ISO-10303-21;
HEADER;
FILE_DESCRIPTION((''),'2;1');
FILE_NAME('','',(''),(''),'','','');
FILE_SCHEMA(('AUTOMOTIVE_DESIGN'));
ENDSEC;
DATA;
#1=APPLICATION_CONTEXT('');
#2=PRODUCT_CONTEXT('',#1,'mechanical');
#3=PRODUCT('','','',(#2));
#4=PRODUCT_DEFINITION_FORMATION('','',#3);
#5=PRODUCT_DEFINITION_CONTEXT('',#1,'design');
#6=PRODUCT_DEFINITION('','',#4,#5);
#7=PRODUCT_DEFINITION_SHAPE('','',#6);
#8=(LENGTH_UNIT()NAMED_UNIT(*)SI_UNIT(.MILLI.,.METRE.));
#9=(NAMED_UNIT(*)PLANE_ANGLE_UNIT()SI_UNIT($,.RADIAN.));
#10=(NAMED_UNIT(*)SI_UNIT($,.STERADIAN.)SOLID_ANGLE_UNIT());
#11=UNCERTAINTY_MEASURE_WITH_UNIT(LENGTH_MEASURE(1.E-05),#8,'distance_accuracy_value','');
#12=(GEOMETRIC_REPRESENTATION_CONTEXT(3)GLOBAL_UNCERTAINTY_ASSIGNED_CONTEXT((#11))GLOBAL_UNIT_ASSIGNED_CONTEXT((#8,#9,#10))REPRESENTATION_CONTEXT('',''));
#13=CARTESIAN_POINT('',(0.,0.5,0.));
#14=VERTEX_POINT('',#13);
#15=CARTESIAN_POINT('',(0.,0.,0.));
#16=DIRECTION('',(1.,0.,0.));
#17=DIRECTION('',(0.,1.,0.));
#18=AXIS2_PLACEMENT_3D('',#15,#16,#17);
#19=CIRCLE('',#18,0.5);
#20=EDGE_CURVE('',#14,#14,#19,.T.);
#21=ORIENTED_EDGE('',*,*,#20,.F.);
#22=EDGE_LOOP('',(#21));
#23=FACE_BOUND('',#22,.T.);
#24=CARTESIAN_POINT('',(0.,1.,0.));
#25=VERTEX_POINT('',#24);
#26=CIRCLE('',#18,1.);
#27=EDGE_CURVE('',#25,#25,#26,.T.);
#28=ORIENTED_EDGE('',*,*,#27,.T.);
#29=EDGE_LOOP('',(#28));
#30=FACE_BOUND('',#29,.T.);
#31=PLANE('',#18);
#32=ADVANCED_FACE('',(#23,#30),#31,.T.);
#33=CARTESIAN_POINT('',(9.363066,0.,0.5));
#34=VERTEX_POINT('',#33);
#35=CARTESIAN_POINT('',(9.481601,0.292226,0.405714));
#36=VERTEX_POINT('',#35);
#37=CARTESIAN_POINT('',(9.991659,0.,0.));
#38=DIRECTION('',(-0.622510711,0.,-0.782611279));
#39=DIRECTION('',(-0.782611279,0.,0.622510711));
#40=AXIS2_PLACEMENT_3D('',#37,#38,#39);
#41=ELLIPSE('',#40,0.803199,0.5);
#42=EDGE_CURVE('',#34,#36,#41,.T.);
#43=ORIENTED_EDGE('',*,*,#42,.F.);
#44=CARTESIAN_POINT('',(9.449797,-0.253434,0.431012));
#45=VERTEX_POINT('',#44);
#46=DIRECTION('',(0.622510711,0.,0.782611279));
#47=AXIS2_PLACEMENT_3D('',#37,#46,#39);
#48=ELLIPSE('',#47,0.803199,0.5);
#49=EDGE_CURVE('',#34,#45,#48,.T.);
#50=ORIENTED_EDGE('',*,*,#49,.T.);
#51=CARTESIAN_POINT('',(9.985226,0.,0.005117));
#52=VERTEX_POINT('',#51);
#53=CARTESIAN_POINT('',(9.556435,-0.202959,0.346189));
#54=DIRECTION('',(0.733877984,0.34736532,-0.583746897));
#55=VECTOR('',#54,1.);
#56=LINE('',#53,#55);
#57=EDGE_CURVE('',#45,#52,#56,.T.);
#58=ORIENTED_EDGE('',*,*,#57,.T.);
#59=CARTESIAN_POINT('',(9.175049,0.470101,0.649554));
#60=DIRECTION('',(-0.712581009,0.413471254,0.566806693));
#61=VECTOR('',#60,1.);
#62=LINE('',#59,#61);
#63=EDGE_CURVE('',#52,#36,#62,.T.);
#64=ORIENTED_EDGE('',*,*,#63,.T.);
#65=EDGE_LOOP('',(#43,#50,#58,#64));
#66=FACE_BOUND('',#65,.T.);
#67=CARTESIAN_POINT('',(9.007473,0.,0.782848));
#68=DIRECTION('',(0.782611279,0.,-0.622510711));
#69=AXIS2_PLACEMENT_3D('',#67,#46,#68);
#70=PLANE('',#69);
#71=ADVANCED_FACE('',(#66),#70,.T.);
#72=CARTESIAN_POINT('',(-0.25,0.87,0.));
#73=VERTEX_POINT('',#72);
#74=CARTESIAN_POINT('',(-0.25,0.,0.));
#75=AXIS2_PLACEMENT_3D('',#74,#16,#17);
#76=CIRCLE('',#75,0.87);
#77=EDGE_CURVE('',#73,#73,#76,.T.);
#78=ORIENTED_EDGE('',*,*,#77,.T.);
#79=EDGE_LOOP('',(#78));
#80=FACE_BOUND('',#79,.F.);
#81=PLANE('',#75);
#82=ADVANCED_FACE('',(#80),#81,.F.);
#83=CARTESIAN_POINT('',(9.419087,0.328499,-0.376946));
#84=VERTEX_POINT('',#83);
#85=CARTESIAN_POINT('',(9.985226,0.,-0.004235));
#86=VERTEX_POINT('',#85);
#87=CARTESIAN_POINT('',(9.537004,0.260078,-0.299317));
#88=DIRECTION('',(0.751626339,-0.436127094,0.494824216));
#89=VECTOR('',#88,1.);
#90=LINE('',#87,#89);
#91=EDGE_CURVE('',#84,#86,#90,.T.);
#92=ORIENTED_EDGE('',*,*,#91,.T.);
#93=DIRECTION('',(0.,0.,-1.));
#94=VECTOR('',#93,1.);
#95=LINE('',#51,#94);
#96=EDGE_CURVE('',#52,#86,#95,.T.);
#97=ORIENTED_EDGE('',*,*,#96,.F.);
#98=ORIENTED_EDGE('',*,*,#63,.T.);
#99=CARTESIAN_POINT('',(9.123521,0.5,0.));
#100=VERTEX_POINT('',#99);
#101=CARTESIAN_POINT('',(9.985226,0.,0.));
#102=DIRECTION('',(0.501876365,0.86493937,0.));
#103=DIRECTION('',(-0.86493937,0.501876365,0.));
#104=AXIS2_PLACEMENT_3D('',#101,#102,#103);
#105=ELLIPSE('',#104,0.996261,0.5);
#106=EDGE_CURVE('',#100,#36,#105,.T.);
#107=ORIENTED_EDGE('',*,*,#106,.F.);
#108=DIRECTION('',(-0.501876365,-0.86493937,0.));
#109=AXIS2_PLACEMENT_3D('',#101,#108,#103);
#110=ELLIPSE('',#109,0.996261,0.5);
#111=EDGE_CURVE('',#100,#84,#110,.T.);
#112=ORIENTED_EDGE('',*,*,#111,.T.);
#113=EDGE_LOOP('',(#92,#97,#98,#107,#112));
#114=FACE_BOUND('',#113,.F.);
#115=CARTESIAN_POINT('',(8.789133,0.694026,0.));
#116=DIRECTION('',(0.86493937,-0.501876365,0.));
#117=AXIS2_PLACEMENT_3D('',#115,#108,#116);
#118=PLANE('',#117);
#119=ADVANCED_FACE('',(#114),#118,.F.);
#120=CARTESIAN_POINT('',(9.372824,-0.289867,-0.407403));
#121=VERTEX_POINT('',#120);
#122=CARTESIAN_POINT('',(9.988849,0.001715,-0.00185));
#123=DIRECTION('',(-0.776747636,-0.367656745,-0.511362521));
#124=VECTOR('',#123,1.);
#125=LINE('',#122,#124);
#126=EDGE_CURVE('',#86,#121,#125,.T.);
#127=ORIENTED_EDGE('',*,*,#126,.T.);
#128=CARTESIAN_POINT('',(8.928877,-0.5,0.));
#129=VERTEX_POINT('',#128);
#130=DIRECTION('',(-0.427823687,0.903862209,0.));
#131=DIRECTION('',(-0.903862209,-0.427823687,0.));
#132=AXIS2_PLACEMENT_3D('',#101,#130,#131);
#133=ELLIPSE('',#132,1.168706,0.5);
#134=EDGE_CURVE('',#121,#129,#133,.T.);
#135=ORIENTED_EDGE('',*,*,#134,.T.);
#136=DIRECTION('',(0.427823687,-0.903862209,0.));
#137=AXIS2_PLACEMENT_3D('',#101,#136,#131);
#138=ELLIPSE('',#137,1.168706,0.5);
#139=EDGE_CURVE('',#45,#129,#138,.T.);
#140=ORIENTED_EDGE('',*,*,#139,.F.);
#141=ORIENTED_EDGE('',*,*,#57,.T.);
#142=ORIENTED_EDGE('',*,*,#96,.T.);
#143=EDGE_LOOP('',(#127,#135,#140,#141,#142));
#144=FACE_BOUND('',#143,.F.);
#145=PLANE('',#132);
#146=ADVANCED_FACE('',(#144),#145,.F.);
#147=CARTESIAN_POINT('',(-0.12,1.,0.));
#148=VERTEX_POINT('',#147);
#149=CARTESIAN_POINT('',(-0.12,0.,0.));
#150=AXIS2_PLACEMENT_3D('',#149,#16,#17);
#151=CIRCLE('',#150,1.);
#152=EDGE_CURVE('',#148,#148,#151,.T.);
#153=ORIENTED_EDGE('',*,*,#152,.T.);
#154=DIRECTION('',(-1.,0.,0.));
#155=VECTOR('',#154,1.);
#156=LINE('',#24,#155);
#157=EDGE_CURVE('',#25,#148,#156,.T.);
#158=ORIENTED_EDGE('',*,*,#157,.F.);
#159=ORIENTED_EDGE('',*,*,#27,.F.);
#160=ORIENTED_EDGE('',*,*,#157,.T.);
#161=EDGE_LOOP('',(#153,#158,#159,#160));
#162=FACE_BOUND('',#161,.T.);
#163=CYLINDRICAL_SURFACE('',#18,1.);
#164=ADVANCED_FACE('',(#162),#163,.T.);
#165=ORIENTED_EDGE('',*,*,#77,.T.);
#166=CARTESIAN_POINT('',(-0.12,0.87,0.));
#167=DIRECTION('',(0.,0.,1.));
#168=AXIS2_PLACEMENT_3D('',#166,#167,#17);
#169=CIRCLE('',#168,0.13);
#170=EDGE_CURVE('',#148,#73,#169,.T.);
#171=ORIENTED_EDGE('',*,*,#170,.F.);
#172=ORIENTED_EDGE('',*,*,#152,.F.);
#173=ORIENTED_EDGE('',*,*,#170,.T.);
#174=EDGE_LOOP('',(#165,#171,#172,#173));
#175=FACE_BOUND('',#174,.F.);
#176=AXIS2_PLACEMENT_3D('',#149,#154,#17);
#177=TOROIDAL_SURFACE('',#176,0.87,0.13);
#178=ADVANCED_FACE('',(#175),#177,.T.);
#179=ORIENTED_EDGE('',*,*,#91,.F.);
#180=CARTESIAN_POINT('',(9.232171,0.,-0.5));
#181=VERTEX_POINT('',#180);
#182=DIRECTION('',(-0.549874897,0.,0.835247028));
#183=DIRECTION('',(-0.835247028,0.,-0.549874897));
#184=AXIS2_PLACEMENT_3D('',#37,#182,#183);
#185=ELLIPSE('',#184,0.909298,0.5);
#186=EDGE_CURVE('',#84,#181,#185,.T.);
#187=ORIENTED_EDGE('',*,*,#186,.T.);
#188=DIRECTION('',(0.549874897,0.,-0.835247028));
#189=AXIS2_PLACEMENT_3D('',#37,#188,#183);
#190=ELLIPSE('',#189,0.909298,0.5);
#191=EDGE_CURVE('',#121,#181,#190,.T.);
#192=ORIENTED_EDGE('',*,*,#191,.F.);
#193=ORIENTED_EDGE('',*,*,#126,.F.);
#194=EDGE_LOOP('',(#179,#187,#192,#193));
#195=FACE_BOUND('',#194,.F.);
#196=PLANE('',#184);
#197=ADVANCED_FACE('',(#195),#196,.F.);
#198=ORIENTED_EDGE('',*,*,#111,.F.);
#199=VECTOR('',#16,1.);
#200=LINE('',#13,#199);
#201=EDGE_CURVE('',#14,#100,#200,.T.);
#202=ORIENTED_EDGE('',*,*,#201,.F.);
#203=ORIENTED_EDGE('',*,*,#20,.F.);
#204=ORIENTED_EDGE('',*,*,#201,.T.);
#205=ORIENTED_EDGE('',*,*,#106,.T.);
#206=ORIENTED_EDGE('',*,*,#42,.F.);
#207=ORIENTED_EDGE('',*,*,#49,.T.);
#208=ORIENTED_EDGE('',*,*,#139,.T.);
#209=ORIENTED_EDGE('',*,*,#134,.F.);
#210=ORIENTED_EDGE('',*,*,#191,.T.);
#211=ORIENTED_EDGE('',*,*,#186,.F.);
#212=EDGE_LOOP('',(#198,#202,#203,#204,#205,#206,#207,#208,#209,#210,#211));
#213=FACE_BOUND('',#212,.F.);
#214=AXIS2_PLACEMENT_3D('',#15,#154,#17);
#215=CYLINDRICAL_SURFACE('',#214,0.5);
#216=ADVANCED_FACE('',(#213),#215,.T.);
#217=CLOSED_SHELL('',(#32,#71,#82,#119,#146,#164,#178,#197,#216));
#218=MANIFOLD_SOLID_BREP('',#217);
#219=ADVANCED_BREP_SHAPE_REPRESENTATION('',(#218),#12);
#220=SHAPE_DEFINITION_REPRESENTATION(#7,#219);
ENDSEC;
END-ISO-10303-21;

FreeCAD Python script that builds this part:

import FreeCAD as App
import Part
import Sketcher


def edges_at(feature, points):
    """Names of the edges that pass closest to the given points."""
    edges = feature.Shape.Edges
    near = lambda p: min(range(len(edges)), key=lambda i: edges[i].distToShape(Part.Vertex(*p))[0])
    return sorted({f"Edge{near(p) + 1}" for p in points})


def add_polygon(sketch, points):
    """Adds a closed chain of lines whose ends are joined by coincident constraints."""
    first, n = sketch.GeometryCount, len(points)
    for a, b in zip(points, points[1:] + points[:1]):
        sketch.addGeometry(Part.LineSegment(App.Vector(*a, 0), App.Vector(*b, 0)), False)
    for i in range(n):
        sketch.addConstraint(Sketcher.Constraint("Coincident", first + i, 2, first + (i + 1) % n, 1))

doc = App.newDocument("Part")
params = doc.addObject("Spreadsheet::Sheet", "Params")
for row, (alias, value) in enumerate([
    ("sketch1_diameter", "1 mm"),
    ("pad1_length", "10 mm"),
    ("sketch2_diameter", "2 mm"),
    ("pad2_length", "0.25 mm"),
    ("fillet_radius", "0.13 mm"),
], start=1):
    params.set(f"A{row}", alias)
    params.set(f"B{row}", "=" + value)
    params.setAlias(f"B{row}", alias)

body = doc.addObject("PartDesign::Body", "Body")

# Sketch on YZ plane
sketch1 = body.newObject("Sketcher::SketchObject", "Sketch")
sketch1.AttachmentSupport = (doc.getObject("YZ_Plane"), [""])
sketch1.MapMode = "FlatFace"
sketch1.addGeometry(Part.Circle(App.Vector(0, 0, 0), App.Vector(0, 0, 1), 0.5), False)
sketch1.addConstraint(Sketcher.Constraint("Coincident", 0, 3, -1, 1))
sketch1.addConstraint(Sketcher.Constraint("Diameter", 0, 1.0))
sketch1.setExpression("Constraints[1]", "Params.sketch1_diameter")
pad1 = body.newObject("PartDesign::Pad", "Pad")
pad1.Profile = sketch1
pad1.setExpression("Length", "Params.pad1_length")

# Sketch on YZ plane
sketch2 = body.newObject("Sketcher::SketchObject", "Sketch001")
sketch2.AttachmentSupport = (doc.getObject("YZ_Plane"), [""])
sketch2.MapMode = "FlatFace"
sketch2.addGeometry(Part.Circle(App.Vector(0, 0, 0), App.Vector(0, 0, 1), 1), False)
sketch2.addConstraint(Sketcher.Constraint("Coincident", 0, 3, -1, 1))
sketch2.addConstraint(Sketcher.Constraint("Diameter", 0, 2.0))
sketch2.setExpression("Constraints[1]", "Params.sketch2_diameter")
pad2 = body.newObject("PartDesign::Pad", "Pad001")
pad2.Profile = sketch2
pad2.setExpression("Length", "Params.pad2_length")
pad2.Reversed = True
doc.recompute()

fillet = body.newObject("PartDesign::Fillet", "Fillet")
fillet.Base = (pad2, edges_at(pad2, [(-0.25, -1, 0)]))
fillet.setExpression("Radius", "Params.fillet_radius")

# Sketch on XZ plane
sketch3 = body.newObject("Sketcher::SketchObject", "Sketch002")
sketch3.AttachmentSupport = (doc.getObject("XZ_Plane"), [""])
sketch3.MapMode = "FlatFace"
add_polygon(sketch3, [(9.297336, 1.194049), (9.007473, 0.782848), (9.991659, 0), (8.805244, -0.781062), (10.719686, -0.754098), (10.733168, 1.342351)])  # lines 0-5
sketch3.addConstraint(Sketcher.Constraint("PointOnObject", 1, 2, -1))
sketch3.addConstraint(Sketcher.Constraint("DistanceY", 0, 2, 5, 2, 0.411201))
sketch3.addConstraint(Sketcher.Constraint("DistanceY", 5, 2, 4, 2, 0.148302))
sketch3.addConstraint(Sketcher.Constraint("Distance", 3, 1.914631))
sketch3.addConstraint(Sketcher.Constraint("Distance", 4, 2.096492))
sketch3.addConstraint(Sketcher.Constraint("Distance", 5, 1.44347))
sketch3.addConstraint(Sketcher.Constraint("DistanceY", -1, 1, 0, 2, 0.782848))
sketch3.addConstraint(Sketcher.Constraint("DistanceX", -1, 1, 1, 2, 9.991659))
sketch3.addConstraint(Sketcher.Constraint("DistanceY", 2, 2, -1, 1, 0.781062))
sketch3.addConstraint(Sketcher.Constraint("DistanceX", 2, 2, 0, 2, 0.202229))
sketch3.addConstraint(Sketcher.Constraint("DistanceX", 1, 2, 4, 2, 0.741509))
sketch3.addConstraint(Sketcher.Constraint("DistanceX", 3, 2, 4, 2, 0.013482))
pocket1 = body.newObject("PartDesign::Pocket", "Pocket")
pocket1.Profile = sketch3
pocket1.Type = "ThroughAll"
pocket1.Midplane = True

# Sketch on XY plane
sketch4 = body.newObject("Sketcher::SketchObject", "Sketch003")
sketch4.AttachmentSupport = (doc.getObject("XY_Plane"), [""])
sketch4.MapMode = "FlatFace"
add_polygon(sketch4, [(9.985226, 0), (8.336606, -0.780339), (11.177161, -1.214573), (11.219811, 0.694026), (8.789133, 0.694026)])  # lines 0-4
sketch4.addConstraint(Sketcher.Constraint("Horizontal", 3))
sketch4.addConstraint(Sketcher.Constraint("PointOnObject", 4, 2, -1))
sketch4.addConstraint(Sketcher.Constraint("DistanceY", 1, 2, 2, 2, 1.908599))
sketch4.addConstraint(Sketcher.Constraint("DistanceX", 3, 2, 3, 1, 2.430678))
sketch4.addConstraint(Sketcher.Constraint("DistanceY", 0, 2, -1, 1, 0.780339))
sketch4.addConstraint(Sketcher.Constraint("DistanceX", -1, 1, 1, 2, 11.177161))
sketch4.addConstraint(Sketcher.Constraint("DistanceX", -1, 1, 2, 2, 11.219811))
sketch4.addConstraint(Sketcher.Constraint("DistanceX", 0, 2, 4, 2, 1.648621))
sketch4.addConstraint(Sketcher.Constraint("Distance", 1, 2.873554))
sketch4.addConstraint(Sketcher.Constraint("Distance", 4, 1.382863))
pocket2 = body.newObject("PartDesign::Pocket", "Pocket001")
pocket2.Profile = sketch4
pocket2.Type = "ThroughAll"
pocket2.Midplane = True

doc.recompute()
